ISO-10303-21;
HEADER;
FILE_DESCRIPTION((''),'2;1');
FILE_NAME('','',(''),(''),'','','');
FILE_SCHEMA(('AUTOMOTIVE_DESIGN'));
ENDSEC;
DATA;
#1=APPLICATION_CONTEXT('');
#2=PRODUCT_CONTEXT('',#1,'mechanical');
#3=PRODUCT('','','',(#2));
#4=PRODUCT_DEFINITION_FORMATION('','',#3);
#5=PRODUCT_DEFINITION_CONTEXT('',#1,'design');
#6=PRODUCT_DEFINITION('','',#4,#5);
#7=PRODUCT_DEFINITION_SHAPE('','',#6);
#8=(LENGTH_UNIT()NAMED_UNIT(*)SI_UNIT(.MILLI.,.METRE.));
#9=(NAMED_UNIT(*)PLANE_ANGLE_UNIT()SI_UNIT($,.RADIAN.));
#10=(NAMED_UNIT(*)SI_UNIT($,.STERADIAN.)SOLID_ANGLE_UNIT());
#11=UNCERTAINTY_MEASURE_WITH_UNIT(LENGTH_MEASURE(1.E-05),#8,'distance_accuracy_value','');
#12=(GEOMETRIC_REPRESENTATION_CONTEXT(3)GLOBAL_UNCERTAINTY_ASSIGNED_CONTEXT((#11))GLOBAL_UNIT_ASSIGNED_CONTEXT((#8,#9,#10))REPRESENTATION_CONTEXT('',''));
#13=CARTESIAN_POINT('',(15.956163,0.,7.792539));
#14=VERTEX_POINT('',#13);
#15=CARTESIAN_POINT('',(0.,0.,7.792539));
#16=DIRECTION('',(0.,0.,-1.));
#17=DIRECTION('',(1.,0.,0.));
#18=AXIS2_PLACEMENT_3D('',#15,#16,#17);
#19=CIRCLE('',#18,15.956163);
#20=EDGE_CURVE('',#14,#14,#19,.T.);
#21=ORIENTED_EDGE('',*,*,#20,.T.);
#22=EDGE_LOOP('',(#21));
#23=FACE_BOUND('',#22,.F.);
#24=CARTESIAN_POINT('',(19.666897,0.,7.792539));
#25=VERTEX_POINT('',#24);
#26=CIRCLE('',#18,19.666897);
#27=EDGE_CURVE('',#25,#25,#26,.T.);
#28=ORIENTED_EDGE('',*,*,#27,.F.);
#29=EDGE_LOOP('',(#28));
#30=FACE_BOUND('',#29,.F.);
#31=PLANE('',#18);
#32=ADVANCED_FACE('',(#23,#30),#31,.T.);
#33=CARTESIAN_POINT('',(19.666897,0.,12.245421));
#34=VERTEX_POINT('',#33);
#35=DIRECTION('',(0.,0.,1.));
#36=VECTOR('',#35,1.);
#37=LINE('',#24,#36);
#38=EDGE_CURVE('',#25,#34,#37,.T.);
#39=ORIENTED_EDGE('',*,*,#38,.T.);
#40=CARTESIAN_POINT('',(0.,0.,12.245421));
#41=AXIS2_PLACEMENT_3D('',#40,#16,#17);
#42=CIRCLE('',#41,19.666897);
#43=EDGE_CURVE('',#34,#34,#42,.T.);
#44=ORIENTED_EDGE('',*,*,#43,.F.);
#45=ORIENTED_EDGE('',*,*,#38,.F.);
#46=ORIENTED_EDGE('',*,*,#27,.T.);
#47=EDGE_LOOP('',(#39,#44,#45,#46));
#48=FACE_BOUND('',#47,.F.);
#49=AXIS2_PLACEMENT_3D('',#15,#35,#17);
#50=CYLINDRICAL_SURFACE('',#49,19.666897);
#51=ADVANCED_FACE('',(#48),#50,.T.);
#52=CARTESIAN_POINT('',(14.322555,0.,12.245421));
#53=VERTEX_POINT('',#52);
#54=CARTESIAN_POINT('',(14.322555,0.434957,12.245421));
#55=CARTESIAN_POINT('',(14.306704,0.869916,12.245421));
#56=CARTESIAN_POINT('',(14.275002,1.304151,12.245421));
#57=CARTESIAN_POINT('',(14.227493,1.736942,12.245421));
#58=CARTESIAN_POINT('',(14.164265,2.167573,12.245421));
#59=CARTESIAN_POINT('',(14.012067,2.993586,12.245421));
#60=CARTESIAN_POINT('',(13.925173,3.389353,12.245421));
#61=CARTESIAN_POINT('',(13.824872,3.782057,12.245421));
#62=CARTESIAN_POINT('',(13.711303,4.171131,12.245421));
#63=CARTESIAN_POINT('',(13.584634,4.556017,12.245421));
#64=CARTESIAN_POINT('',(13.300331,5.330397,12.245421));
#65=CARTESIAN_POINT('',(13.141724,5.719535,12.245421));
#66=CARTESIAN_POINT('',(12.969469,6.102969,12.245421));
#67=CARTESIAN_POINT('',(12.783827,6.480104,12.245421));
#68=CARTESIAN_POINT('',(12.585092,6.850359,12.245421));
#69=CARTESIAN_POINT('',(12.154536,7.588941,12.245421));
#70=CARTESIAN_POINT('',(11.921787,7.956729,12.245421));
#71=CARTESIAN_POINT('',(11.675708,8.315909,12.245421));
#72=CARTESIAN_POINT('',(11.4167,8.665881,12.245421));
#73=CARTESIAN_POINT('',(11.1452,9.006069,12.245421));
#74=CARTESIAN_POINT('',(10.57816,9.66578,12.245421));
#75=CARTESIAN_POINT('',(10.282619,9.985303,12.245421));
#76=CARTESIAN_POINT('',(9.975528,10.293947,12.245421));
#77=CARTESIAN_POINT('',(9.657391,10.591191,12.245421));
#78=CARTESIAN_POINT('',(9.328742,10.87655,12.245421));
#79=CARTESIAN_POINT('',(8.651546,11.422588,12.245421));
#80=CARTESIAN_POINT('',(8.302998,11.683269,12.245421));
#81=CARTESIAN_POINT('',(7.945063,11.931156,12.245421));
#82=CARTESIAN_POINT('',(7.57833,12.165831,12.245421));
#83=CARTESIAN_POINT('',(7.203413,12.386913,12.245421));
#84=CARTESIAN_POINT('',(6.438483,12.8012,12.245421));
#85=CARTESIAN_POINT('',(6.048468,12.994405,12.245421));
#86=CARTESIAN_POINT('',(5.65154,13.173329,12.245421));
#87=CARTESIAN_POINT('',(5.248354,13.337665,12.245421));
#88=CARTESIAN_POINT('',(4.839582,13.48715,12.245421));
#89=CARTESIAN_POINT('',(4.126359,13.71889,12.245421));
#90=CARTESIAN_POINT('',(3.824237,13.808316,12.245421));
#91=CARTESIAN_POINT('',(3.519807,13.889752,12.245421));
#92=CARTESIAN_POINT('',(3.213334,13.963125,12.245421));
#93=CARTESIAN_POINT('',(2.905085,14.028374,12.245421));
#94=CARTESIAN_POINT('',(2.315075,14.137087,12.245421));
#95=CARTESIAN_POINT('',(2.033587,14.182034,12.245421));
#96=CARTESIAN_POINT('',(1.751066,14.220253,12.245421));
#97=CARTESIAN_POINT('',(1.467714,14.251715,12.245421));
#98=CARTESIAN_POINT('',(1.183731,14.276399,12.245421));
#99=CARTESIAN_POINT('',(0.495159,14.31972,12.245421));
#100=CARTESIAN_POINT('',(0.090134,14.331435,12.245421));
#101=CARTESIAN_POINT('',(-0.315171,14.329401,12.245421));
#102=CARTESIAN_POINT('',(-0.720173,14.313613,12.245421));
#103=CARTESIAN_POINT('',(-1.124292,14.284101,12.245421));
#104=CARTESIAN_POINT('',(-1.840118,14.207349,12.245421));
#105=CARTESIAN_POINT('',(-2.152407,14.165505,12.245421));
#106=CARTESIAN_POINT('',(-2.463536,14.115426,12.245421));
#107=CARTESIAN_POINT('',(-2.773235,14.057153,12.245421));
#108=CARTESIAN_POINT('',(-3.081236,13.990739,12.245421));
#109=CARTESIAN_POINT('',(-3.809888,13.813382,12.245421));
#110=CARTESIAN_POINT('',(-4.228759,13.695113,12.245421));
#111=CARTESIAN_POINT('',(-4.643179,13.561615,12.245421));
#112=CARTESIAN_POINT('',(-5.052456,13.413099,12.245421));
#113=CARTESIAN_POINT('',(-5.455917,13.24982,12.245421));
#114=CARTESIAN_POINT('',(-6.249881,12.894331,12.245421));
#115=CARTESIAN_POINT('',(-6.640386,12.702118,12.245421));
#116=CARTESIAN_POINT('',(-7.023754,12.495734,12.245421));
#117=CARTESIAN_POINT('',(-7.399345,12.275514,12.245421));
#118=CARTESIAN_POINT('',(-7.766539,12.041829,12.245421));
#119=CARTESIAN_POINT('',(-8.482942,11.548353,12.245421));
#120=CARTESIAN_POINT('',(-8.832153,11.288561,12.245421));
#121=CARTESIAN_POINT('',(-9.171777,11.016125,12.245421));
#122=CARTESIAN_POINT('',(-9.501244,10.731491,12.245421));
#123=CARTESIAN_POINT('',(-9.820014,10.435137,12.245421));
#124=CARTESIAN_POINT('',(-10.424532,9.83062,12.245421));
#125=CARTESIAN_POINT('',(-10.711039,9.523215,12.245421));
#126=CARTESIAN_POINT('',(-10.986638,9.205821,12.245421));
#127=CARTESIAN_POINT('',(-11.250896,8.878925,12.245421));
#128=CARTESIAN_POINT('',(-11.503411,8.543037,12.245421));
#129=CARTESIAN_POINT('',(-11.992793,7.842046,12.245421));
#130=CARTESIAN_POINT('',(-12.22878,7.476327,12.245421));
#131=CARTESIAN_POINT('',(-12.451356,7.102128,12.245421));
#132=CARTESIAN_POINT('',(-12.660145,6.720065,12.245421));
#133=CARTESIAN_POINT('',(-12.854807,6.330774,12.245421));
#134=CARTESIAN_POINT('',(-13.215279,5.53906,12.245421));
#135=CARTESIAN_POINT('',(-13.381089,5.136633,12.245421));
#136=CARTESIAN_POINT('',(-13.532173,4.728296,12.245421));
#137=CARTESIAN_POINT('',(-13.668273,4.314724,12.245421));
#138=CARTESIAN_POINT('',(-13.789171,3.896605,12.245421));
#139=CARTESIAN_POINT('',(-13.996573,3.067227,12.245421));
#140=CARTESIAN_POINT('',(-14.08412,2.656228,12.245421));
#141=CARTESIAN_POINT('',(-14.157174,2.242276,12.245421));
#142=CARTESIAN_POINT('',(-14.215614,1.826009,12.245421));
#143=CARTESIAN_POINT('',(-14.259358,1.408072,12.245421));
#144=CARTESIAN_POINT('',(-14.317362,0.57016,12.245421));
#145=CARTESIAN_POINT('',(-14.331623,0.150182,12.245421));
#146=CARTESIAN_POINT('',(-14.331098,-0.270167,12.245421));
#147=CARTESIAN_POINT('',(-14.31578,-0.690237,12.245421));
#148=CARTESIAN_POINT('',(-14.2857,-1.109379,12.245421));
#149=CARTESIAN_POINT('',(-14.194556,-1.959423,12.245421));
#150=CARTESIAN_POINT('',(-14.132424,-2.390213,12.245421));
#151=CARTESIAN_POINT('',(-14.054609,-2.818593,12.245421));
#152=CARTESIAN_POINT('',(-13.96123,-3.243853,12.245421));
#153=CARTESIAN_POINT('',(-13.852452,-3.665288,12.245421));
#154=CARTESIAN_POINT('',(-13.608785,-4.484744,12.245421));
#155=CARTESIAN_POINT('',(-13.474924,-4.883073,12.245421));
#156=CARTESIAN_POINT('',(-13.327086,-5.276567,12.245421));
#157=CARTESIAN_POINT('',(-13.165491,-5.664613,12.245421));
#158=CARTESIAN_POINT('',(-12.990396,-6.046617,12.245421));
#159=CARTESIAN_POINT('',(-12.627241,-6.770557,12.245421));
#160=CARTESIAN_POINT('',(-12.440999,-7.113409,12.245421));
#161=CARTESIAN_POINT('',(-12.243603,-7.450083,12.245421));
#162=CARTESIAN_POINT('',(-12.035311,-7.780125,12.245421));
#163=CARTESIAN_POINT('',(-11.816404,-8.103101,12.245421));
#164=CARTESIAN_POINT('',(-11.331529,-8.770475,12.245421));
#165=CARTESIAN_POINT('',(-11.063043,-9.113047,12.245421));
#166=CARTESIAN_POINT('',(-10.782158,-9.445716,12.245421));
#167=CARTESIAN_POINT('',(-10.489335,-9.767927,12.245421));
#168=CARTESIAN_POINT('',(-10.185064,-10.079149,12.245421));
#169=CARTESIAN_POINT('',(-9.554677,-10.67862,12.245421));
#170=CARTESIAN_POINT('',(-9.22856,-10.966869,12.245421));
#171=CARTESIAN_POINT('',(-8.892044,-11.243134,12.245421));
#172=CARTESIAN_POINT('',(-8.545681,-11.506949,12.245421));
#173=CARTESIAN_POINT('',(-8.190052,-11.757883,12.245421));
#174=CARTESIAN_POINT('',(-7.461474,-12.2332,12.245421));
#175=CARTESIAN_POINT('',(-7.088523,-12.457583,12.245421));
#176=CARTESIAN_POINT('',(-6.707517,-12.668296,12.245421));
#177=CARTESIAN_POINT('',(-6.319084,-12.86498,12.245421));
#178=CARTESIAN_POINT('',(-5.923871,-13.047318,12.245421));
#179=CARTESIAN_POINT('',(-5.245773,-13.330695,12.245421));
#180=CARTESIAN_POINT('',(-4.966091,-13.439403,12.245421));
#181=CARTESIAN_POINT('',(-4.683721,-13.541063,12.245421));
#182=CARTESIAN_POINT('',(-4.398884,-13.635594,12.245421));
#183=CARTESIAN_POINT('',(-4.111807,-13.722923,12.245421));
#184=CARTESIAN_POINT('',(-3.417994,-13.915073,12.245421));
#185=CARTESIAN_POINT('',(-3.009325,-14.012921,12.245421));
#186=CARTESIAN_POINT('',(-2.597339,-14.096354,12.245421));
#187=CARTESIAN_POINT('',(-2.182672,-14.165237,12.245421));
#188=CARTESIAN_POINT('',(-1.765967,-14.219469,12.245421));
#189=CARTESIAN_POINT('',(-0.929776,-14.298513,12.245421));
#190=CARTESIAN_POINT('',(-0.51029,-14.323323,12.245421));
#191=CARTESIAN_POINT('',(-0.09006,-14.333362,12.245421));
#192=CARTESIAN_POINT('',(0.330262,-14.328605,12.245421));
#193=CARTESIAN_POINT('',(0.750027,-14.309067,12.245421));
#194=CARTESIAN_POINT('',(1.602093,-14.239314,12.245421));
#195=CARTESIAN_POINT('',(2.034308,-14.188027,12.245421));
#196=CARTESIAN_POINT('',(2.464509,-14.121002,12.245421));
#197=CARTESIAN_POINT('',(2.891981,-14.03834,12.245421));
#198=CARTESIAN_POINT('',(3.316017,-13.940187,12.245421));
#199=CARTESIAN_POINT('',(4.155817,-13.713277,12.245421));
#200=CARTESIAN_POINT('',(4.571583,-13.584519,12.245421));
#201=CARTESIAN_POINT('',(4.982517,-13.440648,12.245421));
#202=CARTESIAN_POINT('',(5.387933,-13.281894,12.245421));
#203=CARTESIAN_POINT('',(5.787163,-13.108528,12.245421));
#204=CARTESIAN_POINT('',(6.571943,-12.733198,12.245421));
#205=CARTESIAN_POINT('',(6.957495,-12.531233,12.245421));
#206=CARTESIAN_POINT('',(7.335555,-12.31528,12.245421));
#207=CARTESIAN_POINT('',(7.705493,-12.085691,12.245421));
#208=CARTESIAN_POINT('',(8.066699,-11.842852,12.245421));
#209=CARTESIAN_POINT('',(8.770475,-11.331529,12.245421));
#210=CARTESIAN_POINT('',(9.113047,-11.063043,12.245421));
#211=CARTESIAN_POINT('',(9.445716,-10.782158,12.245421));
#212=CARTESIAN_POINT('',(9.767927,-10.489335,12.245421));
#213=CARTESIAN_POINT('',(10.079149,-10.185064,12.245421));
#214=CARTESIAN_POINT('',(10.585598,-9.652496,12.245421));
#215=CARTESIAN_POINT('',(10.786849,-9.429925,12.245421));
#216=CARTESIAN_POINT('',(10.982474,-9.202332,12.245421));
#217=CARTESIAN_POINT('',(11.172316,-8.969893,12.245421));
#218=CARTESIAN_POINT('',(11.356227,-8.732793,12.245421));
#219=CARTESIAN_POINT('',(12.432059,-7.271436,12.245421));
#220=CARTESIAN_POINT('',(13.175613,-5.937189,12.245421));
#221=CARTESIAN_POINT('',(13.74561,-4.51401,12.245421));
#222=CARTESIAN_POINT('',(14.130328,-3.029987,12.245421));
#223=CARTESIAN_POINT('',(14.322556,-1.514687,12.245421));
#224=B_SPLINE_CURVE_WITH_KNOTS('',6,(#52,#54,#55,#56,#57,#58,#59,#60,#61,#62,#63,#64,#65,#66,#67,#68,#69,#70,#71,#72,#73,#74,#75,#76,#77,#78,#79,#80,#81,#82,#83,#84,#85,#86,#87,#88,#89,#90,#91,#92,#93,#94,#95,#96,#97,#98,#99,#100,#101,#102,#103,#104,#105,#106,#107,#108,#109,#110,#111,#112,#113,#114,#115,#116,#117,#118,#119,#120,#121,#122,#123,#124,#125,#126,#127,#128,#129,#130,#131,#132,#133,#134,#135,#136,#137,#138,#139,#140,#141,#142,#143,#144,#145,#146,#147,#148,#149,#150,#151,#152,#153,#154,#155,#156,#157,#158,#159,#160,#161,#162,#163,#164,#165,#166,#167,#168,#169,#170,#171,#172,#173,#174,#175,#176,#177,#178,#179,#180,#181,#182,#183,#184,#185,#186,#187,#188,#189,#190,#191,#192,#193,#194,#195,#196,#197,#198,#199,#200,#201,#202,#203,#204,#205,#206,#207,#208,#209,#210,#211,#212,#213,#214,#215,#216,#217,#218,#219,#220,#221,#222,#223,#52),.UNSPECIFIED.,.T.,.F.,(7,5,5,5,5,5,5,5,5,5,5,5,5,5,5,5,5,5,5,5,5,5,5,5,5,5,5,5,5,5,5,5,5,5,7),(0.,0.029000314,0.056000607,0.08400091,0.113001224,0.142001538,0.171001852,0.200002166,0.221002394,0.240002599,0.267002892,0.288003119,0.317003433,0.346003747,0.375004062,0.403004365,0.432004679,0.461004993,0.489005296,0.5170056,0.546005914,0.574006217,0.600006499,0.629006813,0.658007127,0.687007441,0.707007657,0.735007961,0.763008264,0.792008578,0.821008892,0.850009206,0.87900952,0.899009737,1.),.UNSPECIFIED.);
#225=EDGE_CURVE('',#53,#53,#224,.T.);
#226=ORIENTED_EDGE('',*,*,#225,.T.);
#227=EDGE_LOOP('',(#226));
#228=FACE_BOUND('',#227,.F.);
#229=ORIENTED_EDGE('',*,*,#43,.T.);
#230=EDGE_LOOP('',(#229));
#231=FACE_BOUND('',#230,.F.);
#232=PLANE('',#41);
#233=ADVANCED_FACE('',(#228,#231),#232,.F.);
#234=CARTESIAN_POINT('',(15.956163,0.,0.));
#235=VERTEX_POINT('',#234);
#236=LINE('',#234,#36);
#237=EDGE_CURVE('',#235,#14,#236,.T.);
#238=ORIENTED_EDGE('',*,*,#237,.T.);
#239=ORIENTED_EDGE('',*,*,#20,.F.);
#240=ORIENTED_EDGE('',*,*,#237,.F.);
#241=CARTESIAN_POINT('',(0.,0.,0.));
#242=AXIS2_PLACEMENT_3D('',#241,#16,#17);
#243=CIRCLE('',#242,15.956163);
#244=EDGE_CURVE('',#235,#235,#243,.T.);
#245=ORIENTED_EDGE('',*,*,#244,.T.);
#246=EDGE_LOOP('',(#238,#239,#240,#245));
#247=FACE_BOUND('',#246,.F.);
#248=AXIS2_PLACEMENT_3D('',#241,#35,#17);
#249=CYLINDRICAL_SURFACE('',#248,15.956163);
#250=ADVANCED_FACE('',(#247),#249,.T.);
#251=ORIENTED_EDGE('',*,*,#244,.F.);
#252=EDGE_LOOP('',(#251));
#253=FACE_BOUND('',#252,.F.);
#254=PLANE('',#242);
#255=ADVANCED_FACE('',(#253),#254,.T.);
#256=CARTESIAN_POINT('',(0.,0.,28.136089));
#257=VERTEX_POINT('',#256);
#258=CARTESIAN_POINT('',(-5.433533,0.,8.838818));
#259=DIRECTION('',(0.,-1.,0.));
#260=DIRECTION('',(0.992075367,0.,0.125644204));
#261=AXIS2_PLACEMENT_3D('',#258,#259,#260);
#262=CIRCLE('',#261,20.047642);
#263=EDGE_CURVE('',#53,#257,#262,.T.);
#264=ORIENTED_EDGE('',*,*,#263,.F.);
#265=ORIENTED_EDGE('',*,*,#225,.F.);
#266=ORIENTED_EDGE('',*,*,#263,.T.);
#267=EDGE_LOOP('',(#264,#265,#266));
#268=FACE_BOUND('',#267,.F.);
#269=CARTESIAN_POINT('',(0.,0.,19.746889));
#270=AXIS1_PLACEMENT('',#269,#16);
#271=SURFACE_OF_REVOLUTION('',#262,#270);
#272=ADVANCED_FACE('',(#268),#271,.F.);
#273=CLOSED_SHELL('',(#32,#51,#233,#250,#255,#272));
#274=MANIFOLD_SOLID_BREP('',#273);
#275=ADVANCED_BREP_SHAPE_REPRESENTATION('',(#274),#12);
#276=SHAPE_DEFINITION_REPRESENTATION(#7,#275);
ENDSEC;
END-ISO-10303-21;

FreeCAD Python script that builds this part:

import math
import FreeCAD as App
import Part
import Sketcher
from FreeCAD import Vector
Q = App.Units.Quantity


def add_polygon(sketch, points):
    """Adds a closed chain of lines whose ends are joined by coincident constraints."""
    first, n = sketch.GeometryCount, len(points)
    for a, b in zip(points, points[1:] + points[:1]):
        sketch.addGeometry(Part.LineSegment(App.Vector(*a, 0), App.Vector(*b, 0)), False)
    for i in range(n):
        sketch.addConstraint(Sketcher.Constraint("Coincident", first + i, 2, first + (i + 1) % n, 1))

doc = App.newDocument("Part")
body = doc.addObject("PartDesign::Body", "Body")

# Sketch on XZ plane
sketch1 = body.newObject("Sketcher::SketchObject", "Sketch")
sketch1.AttachmentSupport = (doc.getObject("XZ_Plane"), [""])
sketch1.MapMode = "FlatFace"
add_polygon(sketch1, [(0, 12.2), (0, 0), (16, 0), (16, 7.8), (19.7, 7.8), (19.7, 12.2)])  # lines 0-5
sketch1.addConstraint([
    Sketcher.Constraint("Vertical", 0),
    Sketcher.Constraint("Horizontal", 1),
    Sketcher.Constraint("Vertical", 2),
    Sketcher.Constraint("Horizontal", 3),
    Sketcher.Constraint("Vertical", 4),
    Sketcher.Constraint("Horizontal", 5),
    Sketcher.Constraint("Coincident", 0, 2, -1, 1),
    Sketcher.Constraint("DistanceY", 0, 2, 0, 1, Q("12.245421 mm")),
    Sketcher.Constraint("DistanceY", 2, 1, 2, 2, Q("7.792539 mm")),
    Sketcher.Constraint("DistanceX", 1, 1, 1, 2, Q("15.956163 mm")),
    Sketcher.Constraint("DistanceX", 3, 1, 3, 2, Q("3.710734 mm")),
])
revolution = body.newObject("PartDesign::Revolution", "Revolution")
revolution.Profile = sketch1
revolution.ReferenceAxis = (sketch1, ["V_Axis"])
revolution.Angle = 360

# Sketch on XZ plane
sketch2 = body.newObject("Sketcher::SketchObject", "Sketch001")
sketch2.AttachmentSupport = (doc.getObject("XZ_Plane"), [""])
sketch2.MapMode = "FlatFace"
sketch2.addGeometry([
    Part.LineSegment(Vector(0, 11, 0), Vector(14, 11, 0)),
    Part.ArcOfCircle(Part.Circle(Vector(-5, 9, 0), Vector(0, 0, 1), 20), math.radians(7), math.radians(74)),
    Part.LineSegment(Vector(0, 28, 0), Vector(0, 11, 0)),
], False)
sketch2.addConstraint([
    Sketcher.Constraint("Coincident", 0, 2, 1, 1),
    Sketcher.Constraint("Coincident", 1, 2, 2, 1),
    Sketcher.Constraint("Coincident", 2, 2, 0, 1),
    Sketcher.Constraint("Horizontal", 0),
    Sketcher.Constraint("Vertical", 2),
    Sketcher.Constraint("PointOnObject", 1, 2, -2),
    Sketcher.Constraint("Radius", 1, Q("20.047642 mm")),
    Sketcher.Constraint("DistanceY", 2, 2, 2, 1, Q("16.778401 mm")),
    Sketcher.Constraint("DistanceX", 0, 1, 0, 2, Q("14.455239 mm")),
    Sketcher.Constraint("DistanceY", -1, 1, 1, 2, Q("28.136089 mm")),
])
revolution2 = body.newObject("PartDesign::Revolution", "Revolution001")
revolution2.Profile = sketch2
revolution2.ReferenceAxis = (sketch2, ["V_Axis"])
revolution2.Angle = 360

doc.recompute()
